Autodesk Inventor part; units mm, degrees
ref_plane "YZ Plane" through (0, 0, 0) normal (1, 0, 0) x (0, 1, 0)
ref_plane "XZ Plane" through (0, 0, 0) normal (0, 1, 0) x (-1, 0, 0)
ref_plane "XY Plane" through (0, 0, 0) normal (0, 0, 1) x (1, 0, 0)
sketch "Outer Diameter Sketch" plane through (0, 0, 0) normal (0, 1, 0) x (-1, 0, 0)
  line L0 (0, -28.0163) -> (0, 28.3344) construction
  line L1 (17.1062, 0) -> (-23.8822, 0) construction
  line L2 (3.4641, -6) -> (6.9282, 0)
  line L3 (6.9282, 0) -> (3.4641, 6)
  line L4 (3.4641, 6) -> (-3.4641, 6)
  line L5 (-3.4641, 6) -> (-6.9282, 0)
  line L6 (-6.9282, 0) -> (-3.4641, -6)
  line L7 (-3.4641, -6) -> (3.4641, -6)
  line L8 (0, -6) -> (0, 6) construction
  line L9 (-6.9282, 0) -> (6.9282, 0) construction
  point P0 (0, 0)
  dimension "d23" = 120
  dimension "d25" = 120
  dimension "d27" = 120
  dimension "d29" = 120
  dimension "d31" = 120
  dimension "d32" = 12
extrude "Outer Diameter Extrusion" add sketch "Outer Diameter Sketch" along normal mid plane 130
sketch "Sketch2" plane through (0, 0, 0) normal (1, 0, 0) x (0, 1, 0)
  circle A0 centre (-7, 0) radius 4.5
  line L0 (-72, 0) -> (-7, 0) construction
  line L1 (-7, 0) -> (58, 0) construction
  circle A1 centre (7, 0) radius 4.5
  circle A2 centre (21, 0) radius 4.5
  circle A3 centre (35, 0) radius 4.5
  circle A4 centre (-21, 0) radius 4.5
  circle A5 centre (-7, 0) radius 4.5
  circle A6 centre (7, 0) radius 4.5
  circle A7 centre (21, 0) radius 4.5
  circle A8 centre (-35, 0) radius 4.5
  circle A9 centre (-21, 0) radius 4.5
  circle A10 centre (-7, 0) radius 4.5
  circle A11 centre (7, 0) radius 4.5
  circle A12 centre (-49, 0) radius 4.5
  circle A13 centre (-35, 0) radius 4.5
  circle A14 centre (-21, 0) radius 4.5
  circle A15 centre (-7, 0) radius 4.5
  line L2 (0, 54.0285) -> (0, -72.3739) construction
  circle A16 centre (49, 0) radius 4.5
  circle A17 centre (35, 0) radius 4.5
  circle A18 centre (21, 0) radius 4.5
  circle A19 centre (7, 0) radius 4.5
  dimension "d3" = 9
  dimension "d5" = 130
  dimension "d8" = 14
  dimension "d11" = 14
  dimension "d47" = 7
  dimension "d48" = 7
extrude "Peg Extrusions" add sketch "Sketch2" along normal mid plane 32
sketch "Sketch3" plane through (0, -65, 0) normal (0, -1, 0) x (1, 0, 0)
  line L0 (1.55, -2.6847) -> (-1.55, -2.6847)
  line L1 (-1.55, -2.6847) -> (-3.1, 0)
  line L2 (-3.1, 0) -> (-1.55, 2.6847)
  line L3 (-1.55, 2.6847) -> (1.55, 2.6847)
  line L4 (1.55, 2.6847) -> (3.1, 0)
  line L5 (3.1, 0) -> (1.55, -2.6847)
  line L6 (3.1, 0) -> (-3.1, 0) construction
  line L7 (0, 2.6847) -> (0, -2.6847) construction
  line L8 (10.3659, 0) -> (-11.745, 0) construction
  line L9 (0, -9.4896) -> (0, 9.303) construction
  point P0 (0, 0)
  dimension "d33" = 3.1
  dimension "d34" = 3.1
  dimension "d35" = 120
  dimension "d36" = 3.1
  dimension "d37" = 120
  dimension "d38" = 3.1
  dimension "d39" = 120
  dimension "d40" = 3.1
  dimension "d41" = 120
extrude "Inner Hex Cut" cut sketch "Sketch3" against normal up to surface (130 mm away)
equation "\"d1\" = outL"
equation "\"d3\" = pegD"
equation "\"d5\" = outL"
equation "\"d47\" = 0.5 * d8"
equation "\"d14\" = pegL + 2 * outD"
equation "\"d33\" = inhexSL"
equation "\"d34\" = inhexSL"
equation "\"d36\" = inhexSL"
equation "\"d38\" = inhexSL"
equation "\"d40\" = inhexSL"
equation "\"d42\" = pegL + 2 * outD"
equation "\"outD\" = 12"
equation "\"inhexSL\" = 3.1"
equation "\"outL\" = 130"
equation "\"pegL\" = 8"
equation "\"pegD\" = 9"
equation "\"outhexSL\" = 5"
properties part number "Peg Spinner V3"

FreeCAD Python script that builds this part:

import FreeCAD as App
import Part
import Sketcher
Q = App.Units.Quantity

doc = App.newDocument("Part")
body = doc.addObject("PartDesign::Body", "Body")

# Sketch on XZ plane
sketch1 = body.newObject("Sketcher::SketchObject", "Sketch")
sketch1.AttachmentSupport = (doc.getObject("XZ_Plane"), [""])
sketch1.MapMode = "FlatFace"
sketch1.addGeometry([
    Part.LineSegment(App.Vector(3.4641, -6, 0), App.Vector(-3.4641, -6, 0)),  # 0
    Part.LineSegment(App.Vector(-3.4641, -6, 0), App.Vector(-6.9282, 0, 0)),  # 1
    Part.LineSegment(App.Vector(-6.9282, 0, 0), App.Vector(-3.4641, 6, 0)),  # 2
    Part.LineSegment(App.Vector(-3.4641, 6, 0), App.Vector(3.4641, 6, 0)),  # 3
    Part.LineSegment(App.Vector(3.4641, 6, 0), App.Vector(6.9282, 0, 0)),  # 4
    Part.LineSegment(App.Vector(6.9282, 0, 0), App.Vector(3.4641, -6, 0)),  # 5
], False)
sketch1.addConstraint([
    Sketcher.Constraint("Coincident", 0, 2, 1, 1),
    Sketcher.Constraint("Coincident", 1, 2, 2, 1),
    Sketcher.Constraint("Coincident", 2, 2, 3, 1),
    Sketcher.Constraint("Coincident", 3, 2, 4, 1),
    Sketcher.Constraint("Coincident", 4, 2, 5, 1),
    Sketcher.Constraint("Coincident", 5, 2, 0, 1),
    Sketcher.Constraint("Horizontal", 0),
    Sketcher.Constraint("Horizontal", 3),
    Sketcher.Constraint("Symmetric", 0, 2, 3, 2, -1, 1),
    Sketcher.Constraint("Symmetric", 1, 2, 4, 2, -1, 1),
    Sketcher.Constraint("PointOnObject", 1, 2, -1),
    Sketcher.Constraint("Parallel", 2, 5),
    Sketcher.Constraint("Vertical", 0, 2, 2, 2),
    Sketcher.Constraint("Angle", 1, Q("120 deg")),
    Sketcher.Constraint("DistanceY", 0, 2, 2, 2, Q("12 mm")),
    Sketcher.Constraint("DistanceX", 0, 2, 0, 1, Q("6.9282 mm")),
])
pad1 = body.newObject("PartDesign::Pad", "Pad")
pad1.Profile = sketch1
pad1.Length = 130
pad1.Midplane = True

# Sketch on YZ plane
sketch2 = body.newObject("Sketcher::SketchObject", "Sketch001")
sketch2.AttachmentSupport = (doc.getObject("YZ_Plane"), [""])
sketch2.MapMode = "FlatFace"
sketch2.addGeometry([
    Part.Circle(App.Vector(-7, 0, 0), App.Vector(0, 0, 1), 4.5),  # 0
    Part.Circle(App.Vector(7, 0, 0), App.Vector(0, 0, 1), 4.5),  # 1
    Part.Circle(App.Vector(21, 0, 0), App.Vector(0, 0, 1), 4.5),  # 2
    Part.Circle(App.Vector(35, 0, 0), App.Vector(0, 0, 1), 4.5),  # 3
    Part.Circle(App.Vector(-21, 0, 0), App.Vector(0, 0, 1), 4.5),  # 4
    Part.Circle(App.Vector(-35, 0, 0), App.Vector(0, 0, 1), 4.5),  # 5
    Part.Circle(App.Vector(-49, 0, 0), App.Vector(0, 0, 1), 4.5),  # 6
    Part.Circle(App.Vector(49, 0, 0), App.Vector(0, 0, 1), 4.5),  # 7
], False)
sketch2.addConstraint([
    Sketcher.Constraint("Equal", 0, 1),
    Sketcher.Constraint("Equal", 1, 2),
    Sketcher.Constraint("Equal", 2, 3),
    Sketcher.Constraint("Equal", 3, 4),
    Sketcher.Constraint("Equal", 4, 5),
    Sketcher.Constraint("Equal", 5, 6),
    Sketcher.Constraint("Equal", 6, 7),
    Sketcher.Constraint("Symmetric", 0, 3, 1, 3, -1, 1),
    Sketcher.Constraint("Symmetric", 2, 3, 4, 3, -1, 1),
    Sketcher.Constraint("Symmetric", 3, 3, 5, 3, -1, 1),
    Sketcher.Constraint("Symmetric", 6, 3, 7, 3, -1, 1),
    Sketcher.Constraint("PointOnObject", 0, 3, -1),
    Sketcher.Constraint("PointOnObject", 2, 3, -1),
    Sketcher.Constraint("PointOnObject", 3, 3, -1),
    Sketcher.Constraint("PointOnObject", 6, 3, -1),
    Sketcher.Constraint("Diameter", 0, Q("9 mm")),
    Sketcher.Constraint("DistanceX", 0, 3, -1, 1, Q("7 mm")),
    Sketcher.Constraint("DistanceX", 1, 3, 2, 3, Q("14 mm")),
    Sketcher.Constraint("DistanceX", 2, 3, 3, 3, Q("14 mm")),
    Sketcher.Constraint("DistanceX", 6, 3, 5, 3, Q("14 mm")),
])
pad2 = body.newObject("PartDesign::Pad", "Pad001")
pad2.Profile = sketch2
pad2.Length = 32
pad2.Midplane = True

# Sketch on XZ plane
sketch3 = body.newObject("Sketcher::SketchObject", "Sketch002")
sketch3.AttachmentSupport = (doc.getObject("XZ_Plane"), [""])
sketch3.MapMode = "FlatFace"
sketch3.AttachmentOffset = App.Placement(App.Vector(0, 0, 65), App.Rotation())
sketch3.addGeometry([
    Part.LineSegment(App.Vector(-1.55, -2.6847, 0), App.Vector(1.55, -2.6847, 0)),  # 0
    Part.LineSegment(App.Vector(1.55, -2.6847, 0), App.Vector(3.1, 0, 0)),  # 1
    Part.LineSegment(App.Vector(3.1, 0, 0), App.Vector(1.55, 2.6847, 0)),  # 2
    Part.LineSegment(App.Vector(1.55, 2.6847, 0), App.Vector(-1.55, 2.6847, 0)),  # 3
    Part.LineSegment(App.Vector(-1.55, 2.6847, 0), App.Vector(-3.1, 0, 0)),  # 4
    Part.LineSegment(App.Vector(-3.1, 0, 0), App.Vector(-1.55, -2.6847, 0)),  # 5
], False)
sketch3.addConstraint([
    Sketcher.Constraint("Coincident", 0, 2, 1, 1),
    Sketcher.Constraint("Coincident", 1, 2, 2, 1),
    Sketcher.Constraint("Coincident", 2, 2, 3, 1),
    Sketcher.Constraint("Coincident", 3, 2, 4, 1),
    Sketcher.Constraint("Coincident", 4, 2, 5, 1),
    Sketcher.Constraint("Coincident", 5, 2, 0, 1),
    Sketcher.Constraint("Horizontal", 0),
    Sketcher.Constraint("Horizontal", 3),
    Sketcher.Constraint("Symmetric", 0, 2, 3, 2, -1, 1),
    Sketcher.Constraint("Symmetric", 1, 2, 4, 2, -1, 1),
    Sketcher.Constraint("PointOnObject", 1, 2, -1),
    Sketcher.Constraint("Parallel", 2, 5),
    Sketcher.Constraint("Vertical", 0, 2, 2, 2),
    Sketcher.Constraint("Angle", 2, Q("119.9998 deg")),
    Sketcher.Constraint("DistanceX", 0, 1, 0, 2, Q("3.1 mm")),
    Sketcher.Constraint("Distance", 1, Q("3.1 mm")),
])
pocket1 = body.newObject("PartDesign::Pocket", "Pocket")
pocket1.Profile = sketch3
pocket1.Length = 130

doc.recompute()
